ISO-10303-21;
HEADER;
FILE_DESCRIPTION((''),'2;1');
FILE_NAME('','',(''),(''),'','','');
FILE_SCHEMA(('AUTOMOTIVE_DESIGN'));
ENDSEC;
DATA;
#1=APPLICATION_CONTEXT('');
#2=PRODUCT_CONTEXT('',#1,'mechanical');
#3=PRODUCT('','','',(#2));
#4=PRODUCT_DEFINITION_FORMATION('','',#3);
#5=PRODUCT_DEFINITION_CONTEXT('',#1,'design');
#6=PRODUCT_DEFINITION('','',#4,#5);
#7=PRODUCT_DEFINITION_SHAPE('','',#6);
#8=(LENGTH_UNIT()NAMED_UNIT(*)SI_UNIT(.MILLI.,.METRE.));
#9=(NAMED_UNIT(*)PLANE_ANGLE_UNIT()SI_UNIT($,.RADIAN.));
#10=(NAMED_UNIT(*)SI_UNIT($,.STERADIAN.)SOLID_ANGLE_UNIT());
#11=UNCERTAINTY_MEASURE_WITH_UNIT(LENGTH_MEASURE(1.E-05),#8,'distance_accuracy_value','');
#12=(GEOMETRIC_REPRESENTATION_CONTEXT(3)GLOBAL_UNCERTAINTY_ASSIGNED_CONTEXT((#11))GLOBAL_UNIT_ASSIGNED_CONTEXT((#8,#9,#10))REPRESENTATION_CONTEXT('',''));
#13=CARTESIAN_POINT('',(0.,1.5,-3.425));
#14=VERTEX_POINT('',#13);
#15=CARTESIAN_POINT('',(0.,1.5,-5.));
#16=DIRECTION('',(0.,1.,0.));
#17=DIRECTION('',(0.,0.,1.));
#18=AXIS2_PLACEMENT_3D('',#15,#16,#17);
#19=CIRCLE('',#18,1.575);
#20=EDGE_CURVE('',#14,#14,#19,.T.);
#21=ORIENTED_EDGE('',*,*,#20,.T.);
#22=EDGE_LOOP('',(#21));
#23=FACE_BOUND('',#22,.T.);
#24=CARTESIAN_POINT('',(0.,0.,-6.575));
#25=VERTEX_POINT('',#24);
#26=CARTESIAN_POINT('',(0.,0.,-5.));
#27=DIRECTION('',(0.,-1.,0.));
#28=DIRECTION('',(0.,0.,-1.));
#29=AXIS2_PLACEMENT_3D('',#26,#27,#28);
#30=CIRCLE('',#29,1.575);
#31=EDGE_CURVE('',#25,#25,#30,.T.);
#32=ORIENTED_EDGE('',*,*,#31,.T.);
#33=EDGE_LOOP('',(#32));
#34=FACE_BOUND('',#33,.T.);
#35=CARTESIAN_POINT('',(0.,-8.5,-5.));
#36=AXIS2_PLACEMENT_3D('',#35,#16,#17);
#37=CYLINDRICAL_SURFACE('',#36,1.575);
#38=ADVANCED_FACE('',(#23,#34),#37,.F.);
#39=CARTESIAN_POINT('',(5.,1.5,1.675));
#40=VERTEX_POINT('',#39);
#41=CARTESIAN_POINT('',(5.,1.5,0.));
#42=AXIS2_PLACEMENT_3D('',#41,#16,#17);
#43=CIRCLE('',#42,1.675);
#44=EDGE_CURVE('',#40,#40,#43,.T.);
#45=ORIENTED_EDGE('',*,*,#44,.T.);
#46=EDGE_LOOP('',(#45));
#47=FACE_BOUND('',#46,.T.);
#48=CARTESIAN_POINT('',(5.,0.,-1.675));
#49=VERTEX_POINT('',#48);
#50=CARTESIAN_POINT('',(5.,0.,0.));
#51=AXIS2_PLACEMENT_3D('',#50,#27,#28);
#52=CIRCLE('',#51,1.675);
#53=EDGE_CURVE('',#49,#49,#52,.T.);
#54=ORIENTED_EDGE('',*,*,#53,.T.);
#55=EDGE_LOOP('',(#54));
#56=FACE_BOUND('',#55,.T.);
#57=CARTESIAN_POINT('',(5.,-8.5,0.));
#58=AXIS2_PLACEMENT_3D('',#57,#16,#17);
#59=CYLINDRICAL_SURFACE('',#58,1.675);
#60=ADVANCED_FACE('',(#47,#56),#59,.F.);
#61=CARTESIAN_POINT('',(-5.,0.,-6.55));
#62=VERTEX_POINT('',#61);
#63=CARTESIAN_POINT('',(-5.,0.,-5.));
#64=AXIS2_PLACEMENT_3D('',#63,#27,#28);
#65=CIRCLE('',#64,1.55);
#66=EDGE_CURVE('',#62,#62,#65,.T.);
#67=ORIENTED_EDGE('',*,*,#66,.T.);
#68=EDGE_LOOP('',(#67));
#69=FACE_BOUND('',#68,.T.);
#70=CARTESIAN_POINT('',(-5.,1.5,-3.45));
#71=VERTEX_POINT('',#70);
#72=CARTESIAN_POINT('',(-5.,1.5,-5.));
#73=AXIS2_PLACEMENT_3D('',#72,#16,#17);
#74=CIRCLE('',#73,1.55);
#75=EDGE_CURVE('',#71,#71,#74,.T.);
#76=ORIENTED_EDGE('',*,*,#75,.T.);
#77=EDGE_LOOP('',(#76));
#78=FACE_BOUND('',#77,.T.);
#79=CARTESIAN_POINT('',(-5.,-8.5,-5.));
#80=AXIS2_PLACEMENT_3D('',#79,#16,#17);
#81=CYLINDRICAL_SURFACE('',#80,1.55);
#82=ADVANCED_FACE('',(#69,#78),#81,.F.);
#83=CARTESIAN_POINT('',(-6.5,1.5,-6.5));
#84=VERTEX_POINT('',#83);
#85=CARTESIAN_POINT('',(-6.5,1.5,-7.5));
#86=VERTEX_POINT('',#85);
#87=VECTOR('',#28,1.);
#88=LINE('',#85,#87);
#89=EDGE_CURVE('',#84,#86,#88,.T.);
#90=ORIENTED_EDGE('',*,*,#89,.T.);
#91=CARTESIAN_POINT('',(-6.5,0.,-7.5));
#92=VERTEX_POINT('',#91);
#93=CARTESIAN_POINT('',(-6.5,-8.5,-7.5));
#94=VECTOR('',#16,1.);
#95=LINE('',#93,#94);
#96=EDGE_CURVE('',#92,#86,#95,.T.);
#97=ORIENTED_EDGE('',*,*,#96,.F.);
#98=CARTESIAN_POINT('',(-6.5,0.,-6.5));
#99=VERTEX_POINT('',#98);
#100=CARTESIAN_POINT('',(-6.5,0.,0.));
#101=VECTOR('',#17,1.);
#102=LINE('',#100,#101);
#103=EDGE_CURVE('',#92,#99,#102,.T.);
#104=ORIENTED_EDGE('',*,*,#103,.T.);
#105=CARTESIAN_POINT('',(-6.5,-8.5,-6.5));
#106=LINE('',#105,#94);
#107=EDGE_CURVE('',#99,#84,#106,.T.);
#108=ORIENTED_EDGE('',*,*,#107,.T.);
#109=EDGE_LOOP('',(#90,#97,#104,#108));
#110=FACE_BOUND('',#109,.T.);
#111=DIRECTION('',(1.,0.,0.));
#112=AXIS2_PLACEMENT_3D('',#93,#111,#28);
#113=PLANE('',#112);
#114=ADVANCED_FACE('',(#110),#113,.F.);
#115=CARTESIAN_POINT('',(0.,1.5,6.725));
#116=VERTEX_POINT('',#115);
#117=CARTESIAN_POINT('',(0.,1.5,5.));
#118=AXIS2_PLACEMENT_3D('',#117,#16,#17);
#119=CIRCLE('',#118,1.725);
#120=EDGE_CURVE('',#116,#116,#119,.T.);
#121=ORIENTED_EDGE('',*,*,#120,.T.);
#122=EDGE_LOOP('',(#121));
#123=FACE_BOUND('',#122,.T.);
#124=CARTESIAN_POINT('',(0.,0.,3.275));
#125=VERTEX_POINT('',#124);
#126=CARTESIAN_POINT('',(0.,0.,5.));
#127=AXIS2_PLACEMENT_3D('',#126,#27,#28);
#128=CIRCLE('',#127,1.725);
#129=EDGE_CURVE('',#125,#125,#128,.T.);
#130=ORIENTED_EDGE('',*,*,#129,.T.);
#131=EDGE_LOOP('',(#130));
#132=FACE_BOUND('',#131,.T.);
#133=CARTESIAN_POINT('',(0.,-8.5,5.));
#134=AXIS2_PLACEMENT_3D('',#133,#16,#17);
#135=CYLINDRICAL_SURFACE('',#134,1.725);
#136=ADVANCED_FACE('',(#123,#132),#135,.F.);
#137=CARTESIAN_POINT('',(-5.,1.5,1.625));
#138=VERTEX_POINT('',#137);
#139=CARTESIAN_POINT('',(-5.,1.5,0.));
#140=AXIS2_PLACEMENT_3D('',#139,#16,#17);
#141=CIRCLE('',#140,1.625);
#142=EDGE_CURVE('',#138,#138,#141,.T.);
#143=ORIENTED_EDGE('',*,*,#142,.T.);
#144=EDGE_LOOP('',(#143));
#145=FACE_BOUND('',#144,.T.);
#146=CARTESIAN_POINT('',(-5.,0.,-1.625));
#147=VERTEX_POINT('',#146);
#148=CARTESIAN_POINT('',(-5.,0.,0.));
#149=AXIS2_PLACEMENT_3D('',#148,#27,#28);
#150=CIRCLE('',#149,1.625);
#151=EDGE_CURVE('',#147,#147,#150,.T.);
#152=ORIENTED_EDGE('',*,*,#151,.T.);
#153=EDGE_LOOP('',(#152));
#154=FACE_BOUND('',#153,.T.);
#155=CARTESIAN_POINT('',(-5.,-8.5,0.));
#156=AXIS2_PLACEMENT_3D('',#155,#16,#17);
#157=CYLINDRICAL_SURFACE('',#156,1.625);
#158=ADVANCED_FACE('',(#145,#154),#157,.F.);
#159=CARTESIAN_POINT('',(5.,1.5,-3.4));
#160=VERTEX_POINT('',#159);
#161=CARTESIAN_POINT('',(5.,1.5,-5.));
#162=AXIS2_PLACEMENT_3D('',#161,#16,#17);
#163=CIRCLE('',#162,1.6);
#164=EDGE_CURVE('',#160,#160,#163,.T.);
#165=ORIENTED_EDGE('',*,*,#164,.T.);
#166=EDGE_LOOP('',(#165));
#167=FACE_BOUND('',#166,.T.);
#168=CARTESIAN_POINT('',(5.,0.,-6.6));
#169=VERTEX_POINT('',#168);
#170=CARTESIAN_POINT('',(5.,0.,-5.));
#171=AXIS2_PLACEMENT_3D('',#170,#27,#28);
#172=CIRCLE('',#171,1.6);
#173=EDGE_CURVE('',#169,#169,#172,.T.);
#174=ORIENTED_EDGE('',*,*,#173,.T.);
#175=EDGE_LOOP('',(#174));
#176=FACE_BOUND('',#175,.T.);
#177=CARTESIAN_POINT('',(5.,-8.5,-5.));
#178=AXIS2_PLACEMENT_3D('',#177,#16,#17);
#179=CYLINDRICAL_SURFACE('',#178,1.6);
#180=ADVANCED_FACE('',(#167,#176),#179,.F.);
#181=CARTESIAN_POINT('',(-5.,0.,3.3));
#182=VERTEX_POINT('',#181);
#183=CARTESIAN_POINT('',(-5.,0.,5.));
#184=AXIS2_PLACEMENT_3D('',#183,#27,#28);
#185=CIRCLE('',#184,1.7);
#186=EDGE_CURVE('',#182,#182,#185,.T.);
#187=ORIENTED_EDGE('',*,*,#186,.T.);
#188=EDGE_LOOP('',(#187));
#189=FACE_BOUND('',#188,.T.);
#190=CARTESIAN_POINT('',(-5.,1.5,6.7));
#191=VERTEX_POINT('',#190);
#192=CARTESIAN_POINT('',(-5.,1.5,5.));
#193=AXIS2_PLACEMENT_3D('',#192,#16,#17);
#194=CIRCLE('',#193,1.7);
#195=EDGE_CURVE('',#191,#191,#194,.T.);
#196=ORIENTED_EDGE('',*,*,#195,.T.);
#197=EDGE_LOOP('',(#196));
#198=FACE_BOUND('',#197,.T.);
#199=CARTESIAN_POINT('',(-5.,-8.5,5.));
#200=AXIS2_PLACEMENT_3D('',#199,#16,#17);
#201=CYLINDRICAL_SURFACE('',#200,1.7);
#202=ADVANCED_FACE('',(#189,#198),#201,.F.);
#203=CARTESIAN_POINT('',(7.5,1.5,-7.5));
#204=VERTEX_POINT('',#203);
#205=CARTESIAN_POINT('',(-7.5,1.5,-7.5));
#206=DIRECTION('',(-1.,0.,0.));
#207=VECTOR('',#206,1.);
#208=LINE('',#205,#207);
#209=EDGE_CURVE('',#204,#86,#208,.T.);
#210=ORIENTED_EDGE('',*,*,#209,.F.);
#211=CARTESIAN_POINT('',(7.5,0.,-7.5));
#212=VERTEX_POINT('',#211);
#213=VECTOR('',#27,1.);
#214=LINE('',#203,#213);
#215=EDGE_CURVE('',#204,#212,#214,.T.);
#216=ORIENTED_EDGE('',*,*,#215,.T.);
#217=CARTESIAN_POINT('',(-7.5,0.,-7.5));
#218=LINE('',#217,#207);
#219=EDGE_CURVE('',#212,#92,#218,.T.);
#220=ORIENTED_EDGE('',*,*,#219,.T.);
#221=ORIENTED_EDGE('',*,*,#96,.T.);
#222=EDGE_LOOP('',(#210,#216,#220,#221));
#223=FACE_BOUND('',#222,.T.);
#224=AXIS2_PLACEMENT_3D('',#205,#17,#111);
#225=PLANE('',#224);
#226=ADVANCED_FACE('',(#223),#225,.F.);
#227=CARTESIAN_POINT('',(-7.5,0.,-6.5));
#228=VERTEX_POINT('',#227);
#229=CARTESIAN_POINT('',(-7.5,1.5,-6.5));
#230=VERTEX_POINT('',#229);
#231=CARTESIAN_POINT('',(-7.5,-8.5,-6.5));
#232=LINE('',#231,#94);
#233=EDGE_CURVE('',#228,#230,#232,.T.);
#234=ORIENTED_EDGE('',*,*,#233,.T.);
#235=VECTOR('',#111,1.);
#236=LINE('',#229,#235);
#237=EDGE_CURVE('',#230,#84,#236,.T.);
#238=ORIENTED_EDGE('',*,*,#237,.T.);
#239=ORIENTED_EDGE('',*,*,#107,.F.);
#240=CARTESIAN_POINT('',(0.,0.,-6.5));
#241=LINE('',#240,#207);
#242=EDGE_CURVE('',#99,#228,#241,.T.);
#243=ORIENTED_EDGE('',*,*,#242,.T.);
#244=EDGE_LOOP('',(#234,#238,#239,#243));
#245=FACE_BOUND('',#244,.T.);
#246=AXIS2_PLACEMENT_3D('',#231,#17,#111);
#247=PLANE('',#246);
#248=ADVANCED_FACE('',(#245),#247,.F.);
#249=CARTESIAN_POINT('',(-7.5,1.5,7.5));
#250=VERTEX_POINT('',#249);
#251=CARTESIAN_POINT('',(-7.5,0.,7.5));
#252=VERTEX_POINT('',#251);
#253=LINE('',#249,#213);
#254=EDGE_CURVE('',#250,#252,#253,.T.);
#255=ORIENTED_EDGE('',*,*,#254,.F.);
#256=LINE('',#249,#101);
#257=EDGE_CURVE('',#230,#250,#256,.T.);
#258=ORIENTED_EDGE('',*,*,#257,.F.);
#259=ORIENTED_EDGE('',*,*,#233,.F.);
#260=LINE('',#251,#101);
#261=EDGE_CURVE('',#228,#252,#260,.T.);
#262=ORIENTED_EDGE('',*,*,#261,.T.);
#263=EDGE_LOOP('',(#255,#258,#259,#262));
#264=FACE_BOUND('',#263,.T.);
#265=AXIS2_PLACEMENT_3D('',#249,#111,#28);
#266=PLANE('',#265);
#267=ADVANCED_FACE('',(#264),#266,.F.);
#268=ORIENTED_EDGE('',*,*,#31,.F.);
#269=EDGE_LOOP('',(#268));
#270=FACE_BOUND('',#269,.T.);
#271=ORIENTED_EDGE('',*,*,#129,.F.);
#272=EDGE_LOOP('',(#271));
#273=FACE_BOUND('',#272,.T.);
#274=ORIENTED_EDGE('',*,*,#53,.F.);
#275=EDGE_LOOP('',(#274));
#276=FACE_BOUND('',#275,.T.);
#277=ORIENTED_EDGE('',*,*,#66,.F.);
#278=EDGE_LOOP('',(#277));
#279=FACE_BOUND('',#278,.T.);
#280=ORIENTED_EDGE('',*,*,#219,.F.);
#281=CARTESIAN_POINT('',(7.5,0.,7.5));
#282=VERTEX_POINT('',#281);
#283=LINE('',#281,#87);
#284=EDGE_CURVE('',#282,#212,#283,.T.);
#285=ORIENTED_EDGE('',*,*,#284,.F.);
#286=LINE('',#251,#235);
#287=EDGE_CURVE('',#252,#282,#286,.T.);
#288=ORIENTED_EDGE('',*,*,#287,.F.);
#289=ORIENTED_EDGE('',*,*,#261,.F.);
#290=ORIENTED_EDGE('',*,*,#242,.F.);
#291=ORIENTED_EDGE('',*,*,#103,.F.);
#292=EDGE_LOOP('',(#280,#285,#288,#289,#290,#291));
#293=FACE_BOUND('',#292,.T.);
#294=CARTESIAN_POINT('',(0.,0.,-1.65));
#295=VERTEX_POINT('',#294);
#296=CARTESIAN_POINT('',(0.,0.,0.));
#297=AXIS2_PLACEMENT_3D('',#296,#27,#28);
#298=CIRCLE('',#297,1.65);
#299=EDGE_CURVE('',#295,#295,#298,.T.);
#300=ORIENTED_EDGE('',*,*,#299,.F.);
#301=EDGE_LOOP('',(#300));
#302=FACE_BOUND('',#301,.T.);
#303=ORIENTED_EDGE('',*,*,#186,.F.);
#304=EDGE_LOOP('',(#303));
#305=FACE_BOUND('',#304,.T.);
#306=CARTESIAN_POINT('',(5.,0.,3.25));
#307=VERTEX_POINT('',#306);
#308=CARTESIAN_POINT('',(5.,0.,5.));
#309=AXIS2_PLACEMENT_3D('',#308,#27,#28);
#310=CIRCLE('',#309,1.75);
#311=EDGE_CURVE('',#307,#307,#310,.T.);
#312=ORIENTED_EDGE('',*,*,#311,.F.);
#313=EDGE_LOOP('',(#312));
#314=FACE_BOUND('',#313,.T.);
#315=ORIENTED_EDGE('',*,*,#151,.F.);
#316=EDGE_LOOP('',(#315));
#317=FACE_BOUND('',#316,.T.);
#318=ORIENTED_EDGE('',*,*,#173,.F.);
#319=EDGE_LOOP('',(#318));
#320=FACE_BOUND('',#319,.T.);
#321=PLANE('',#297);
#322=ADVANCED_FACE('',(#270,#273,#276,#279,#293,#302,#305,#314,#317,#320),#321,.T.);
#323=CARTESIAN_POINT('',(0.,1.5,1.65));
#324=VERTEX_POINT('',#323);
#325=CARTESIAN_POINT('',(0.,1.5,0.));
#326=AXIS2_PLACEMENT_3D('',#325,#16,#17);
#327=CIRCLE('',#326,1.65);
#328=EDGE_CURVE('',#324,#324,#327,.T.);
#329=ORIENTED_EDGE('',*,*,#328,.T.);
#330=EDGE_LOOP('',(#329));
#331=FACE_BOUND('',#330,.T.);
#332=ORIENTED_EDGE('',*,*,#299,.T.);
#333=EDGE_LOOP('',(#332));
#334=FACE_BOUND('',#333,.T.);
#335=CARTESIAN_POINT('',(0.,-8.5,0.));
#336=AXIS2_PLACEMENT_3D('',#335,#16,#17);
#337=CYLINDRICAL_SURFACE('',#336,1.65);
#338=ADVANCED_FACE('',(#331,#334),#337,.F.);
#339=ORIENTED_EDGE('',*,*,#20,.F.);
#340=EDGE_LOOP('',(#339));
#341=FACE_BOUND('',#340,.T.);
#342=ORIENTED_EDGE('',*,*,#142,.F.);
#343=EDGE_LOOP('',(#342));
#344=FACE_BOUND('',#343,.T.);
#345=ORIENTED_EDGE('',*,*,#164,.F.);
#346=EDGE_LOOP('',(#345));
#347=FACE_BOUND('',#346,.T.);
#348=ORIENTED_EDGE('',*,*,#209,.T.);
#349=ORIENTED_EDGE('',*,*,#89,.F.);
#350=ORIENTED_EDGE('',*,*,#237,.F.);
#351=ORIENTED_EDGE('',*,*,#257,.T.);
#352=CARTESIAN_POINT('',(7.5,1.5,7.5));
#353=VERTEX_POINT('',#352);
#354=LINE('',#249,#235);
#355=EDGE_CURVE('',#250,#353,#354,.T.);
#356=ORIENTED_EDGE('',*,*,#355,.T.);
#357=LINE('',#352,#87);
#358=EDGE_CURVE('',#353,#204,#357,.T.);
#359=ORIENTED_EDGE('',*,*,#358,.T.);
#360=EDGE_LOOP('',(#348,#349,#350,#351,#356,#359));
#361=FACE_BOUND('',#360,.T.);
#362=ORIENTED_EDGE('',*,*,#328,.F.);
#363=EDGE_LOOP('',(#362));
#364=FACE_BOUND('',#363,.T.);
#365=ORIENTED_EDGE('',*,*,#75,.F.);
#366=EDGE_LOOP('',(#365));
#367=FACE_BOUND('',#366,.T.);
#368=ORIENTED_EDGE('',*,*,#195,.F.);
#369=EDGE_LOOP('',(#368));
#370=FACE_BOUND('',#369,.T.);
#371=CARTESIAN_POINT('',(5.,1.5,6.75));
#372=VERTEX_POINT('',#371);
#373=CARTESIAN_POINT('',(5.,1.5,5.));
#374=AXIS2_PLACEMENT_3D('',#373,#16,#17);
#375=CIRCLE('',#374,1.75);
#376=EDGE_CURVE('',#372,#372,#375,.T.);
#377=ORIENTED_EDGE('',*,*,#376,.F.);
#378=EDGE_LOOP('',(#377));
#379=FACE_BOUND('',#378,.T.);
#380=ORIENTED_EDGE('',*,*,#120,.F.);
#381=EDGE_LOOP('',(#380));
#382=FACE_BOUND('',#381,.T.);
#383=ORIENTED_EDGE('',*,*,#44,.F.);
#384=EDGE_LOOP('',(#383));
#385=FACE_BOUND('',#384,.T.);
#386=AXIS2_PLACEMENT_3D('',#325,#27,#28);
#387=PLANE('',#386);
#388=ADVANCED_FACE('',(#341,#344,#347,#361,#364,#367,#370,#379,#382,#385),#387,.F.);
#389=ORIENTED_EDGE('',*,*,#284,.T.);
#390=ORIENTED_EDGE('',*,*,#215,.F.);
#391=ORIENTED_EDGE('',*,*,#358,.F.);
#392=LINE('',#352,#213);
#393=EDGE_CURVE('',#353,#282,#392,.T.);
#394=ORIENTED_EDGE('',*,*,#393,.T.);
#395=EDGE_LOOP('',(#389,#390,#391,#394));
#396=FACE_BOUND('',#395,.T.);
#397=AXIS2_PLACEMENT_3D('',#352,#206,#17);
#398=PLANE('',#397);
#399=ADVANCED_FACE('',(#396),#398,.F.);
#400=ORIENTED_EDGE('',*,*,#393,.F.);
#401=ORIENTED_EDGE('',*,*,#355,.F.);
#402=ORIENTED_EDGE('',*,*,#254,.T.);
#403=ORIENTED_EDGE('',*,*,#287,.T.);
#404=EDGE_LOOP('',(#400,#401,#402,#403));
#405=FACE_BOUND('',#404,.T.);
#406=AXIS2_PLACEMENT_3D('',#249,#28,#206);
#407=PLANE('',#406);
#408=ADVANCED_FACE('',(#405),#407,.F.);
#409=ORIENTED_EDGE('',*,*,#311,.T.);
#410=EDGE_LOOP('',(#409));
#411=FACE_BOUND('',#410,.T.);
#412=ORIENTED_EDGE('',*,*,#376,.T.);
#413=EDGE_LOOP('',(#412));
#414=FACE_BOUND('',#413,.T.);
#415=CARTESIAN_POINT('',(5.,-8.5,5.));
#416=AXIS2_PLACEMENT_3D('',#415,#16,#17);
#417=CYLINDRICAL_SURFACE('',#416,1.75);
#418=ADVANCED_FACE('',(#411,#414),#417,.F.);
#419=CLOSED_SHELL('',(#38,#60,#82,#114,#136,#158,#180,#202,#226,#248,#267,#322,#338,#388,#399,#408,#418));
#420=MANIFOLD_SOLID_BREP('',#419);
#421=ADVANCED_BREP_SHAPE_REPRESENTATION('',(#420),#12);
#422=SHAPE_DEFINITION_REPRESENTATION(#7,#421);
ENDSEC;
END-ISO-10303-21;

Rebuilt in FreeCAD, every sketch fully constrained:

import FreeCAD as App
import Part
import Sketcher

doc = App.newDocument("Part")
body = doc.addObject("PartDesign::Body", "Body")

sketch1 = doc.addObject("Sketcher::SketchObject", "Sketch")
body.addObject(sketch1)
sketch1.AttachmentSupport = (doc.XZ_Plane, [""])
sketch1.MapMode = "FlatFace"
sketch1.addGeometry([
    Part.LineSegment(App.Vector(-7.5, -7.5, 0), App.Vector(-7.5, 7.5, 0)),
    Part.LineSegment(App.Vector(-7.5, 7.5, 0), App.Vector(7.5, 7.5, 0)),
    Part.LineSegment(App.Vector(7.5, 7.5, 0), App.Vector(7.5, -7.5, 0)),
    Part.LineSegment(App.Vector(7.5, -7.5, 0), App.Vector(-7.5, -7.5, 0)),
], False)
sketch1.addConstraint([
    Sketcher.Constraint("Coincident", 0, 2, 1, 1),
    Sketcher.Constraint("Coincident", 1, 2, 2, 1),
    Sketcher.Constraint("Coincident", 2, 2, 3, 1),
    Sketcher.Constraint("Coincident", 3, 2, 0, 1),
    Sketcher.Constraint("Vertical", 0),
    Sketcher.Constraint("Horizontal", 1),
    Sketcher.Constraint("Vertical", 2),
    Sketcher.Constraint("Horizontal", 3),
    Sketcher.Constraint("Symmetric", 0, 2, 2, 2, -1, 1),
    Sketcher.Constraint("Equal", 3, 0),
    Sketcher.Constraint("DistanceX", 1, 1, 1, 2, 15.0),
])
pad1 = doc.addObject("PartDesign::Pad", "Pad")
body.addObject(pad1)
pad1.Profile = sketch1
pad1.Length = 1.5
pad1.Reversed = True

sketch2 = doc.addObject("Sketcher::SketchObject", "Sketch001")
body.addObject(sketch2)
sketch2.AttachmentSupport = (doc.XZ_Plane, [""])
sketch2.MapMode = "FlatFace"
sketch2.AttachmentOffset = App.Placement(App.Vector(0, 0, -1.5), App.Rotation())
sketch2.addGeometry([
    Part.Circle(App.Vector(-5, -5, 0), App.Vector(0, 0, 1), 1.55),
    Part.Circle(App.Vector(0, -5, 0), App.Vector(0, 0, 1), 1.575),
    Part.Circle(App.Vector(5, -5, 0), App.Vector(0, 0, 1), 1.6),
    Part.Circle(App.Vector(-5, 0, 0), App.Vector(0, 0, 1), 1.625),
    Part.Circle(App.Vector(0, 0, 0), App.Vector(0, 0, 1), 1.65),
    Part.Circle(App.Vector(5, 0, 0), App.Vector(0, 0, 1), 1.675),
    Part.Circle(App.Vector(-5, 5, 0), App.Vector(0, 0, 1), 1.7),
    Part.Circle(App.Vector(0, 5, 0), App.Vector(0, 0, 1), 1.725),
    Part.Circle(App.Vector(5, 5, 0), App.Vector(0, 0, 1), 1.75),
], False)
sketch2.addConstraint([
    Sketcher.Constraint("Coincident", 4, 3, -1, 1),
    Sketcher.Constraint("Symmetric", 3, 3, 5, 3, -1, 1),
    Sketcher.Constraint("Symmetric", 2, 3, 6, 3, -1, 1),
    Sketcher.Constraint("Symmetric", 1, 3, 7, 3, -1, 1),
    Sketcher.Constraint("Symmetric", 0, 3, 8, 3, -1, 1),
    Sketcher.Constraint("Symmetric", 0, 3, 2, 3, -2),
    Sketcher.Constraint("PointOnObject", 1, 3, -2),
    Sketcher.Constraint("PointOnObject", 3, 3, -1),
    Sketcher.Constraint("Horizontal", 0, 3, 1, 3),
    Sketcher.Constraint("Vertical", 0, 3, 3, 3),
    Sketcher.Constraint("Diameter", 0, 3.1),
    Sketcher.Constraint("Diameter", 2, 3.2),
    Sketcher.Constraint("Diameter", 4, 3.3),
    Sketcher.Constraint("Diameter", 6, 3.4),
    Sketcher.Constraint("Diameter", 8, 3.5),
    Sketcher.Constraint("Diameter", 1, 3.15),
    Sketcher.Constraint("Diameter", 3, 3.25),
    Sketcher.Constraint("Diameter", 5, 3.35),
    Sketcher.Constraint("Diameter", 7, 3.45),
    Sketcher.Constraint("DistanceX", 0, 3, -1, 1, 5.0),
    Sketcher.Constraint("DistanceY", 0, 3, -1, 1, 5.0),
])
pocket1 = doc.addObject("PartDesign::Pocket", "Pocket")
body.addObject(pocket1)
pocket1.Profile = sketch2
pocket1.Length = 10
pocket1.Reversed = True

sketch3 = doc.addObject("Sketcher::SketchObject", "Sketch002")
body.addObject(sketch3)
sketch3.AttachmentSupport = (doc.XZ_Plane, [""])
sketch3.MapMode = "FlatFace"
sketch3.AttachmentOffset = App.Placement(App.Vector(0, 0, -1.5), App.Rotation())
sketch3.addGeometry([
    Part.LineSegment(App.Vector(-7.5, -7.5, 0), App.Vector(-7.5, -6.5, 0)),
    Part.LineSegment(App.Vector(-7.5, -6.5, 0), App.Vector(-6.5, -6.5, 0)),
    Part.LineSegment(App.Vector(-6.5, -6.5, 0), App.Vector(-6.5, -7.5, 0)),
    Part.LineSegment(App.Vector(-6.5, -7.5, 0), App.Vector(-7.5, -7.5, 0)),
], False)
sketch3.addConstraint([
    Sketcher.Constraint("Coincident", 0, 2, 1, 1),
    Sketcher.Constraint("Coincident", 1, 2, 2, 1),
    Sketcher.Constraint("Coincident", 2, 2, 3, 1),
    Sketcher.Constraint("Coincident", 3, 2, 0, 1),
    Sketcher.Constraint("Vertical", 0),
    Sketcher.Constraint("Horizontal", 1),
    Sketcher.Constraint("Vertical", 2),
    Sketcher.Constraint("Horizontal", 3),
    Sketcher.Constraint("Equal", 3, 0),
    Sketcher.Constraint("DistanceX", 1, 1, 1, 2, 1.0),
    Sketcher.Constraint("DistanceX", 0, 2, -1, 1, 7.5),
    Sketcher.Constraint("DistanceY", 0, 2, -1, 1, 6.5),
])
pocket2 = doc.addObject("PartDesign::Pocket", "Pocket001")
body.addObject(pocket2)
pocket2.Profile = sketch3
pocket2.Length = 10
pocket2.Reversed = True

doc.recompute()
